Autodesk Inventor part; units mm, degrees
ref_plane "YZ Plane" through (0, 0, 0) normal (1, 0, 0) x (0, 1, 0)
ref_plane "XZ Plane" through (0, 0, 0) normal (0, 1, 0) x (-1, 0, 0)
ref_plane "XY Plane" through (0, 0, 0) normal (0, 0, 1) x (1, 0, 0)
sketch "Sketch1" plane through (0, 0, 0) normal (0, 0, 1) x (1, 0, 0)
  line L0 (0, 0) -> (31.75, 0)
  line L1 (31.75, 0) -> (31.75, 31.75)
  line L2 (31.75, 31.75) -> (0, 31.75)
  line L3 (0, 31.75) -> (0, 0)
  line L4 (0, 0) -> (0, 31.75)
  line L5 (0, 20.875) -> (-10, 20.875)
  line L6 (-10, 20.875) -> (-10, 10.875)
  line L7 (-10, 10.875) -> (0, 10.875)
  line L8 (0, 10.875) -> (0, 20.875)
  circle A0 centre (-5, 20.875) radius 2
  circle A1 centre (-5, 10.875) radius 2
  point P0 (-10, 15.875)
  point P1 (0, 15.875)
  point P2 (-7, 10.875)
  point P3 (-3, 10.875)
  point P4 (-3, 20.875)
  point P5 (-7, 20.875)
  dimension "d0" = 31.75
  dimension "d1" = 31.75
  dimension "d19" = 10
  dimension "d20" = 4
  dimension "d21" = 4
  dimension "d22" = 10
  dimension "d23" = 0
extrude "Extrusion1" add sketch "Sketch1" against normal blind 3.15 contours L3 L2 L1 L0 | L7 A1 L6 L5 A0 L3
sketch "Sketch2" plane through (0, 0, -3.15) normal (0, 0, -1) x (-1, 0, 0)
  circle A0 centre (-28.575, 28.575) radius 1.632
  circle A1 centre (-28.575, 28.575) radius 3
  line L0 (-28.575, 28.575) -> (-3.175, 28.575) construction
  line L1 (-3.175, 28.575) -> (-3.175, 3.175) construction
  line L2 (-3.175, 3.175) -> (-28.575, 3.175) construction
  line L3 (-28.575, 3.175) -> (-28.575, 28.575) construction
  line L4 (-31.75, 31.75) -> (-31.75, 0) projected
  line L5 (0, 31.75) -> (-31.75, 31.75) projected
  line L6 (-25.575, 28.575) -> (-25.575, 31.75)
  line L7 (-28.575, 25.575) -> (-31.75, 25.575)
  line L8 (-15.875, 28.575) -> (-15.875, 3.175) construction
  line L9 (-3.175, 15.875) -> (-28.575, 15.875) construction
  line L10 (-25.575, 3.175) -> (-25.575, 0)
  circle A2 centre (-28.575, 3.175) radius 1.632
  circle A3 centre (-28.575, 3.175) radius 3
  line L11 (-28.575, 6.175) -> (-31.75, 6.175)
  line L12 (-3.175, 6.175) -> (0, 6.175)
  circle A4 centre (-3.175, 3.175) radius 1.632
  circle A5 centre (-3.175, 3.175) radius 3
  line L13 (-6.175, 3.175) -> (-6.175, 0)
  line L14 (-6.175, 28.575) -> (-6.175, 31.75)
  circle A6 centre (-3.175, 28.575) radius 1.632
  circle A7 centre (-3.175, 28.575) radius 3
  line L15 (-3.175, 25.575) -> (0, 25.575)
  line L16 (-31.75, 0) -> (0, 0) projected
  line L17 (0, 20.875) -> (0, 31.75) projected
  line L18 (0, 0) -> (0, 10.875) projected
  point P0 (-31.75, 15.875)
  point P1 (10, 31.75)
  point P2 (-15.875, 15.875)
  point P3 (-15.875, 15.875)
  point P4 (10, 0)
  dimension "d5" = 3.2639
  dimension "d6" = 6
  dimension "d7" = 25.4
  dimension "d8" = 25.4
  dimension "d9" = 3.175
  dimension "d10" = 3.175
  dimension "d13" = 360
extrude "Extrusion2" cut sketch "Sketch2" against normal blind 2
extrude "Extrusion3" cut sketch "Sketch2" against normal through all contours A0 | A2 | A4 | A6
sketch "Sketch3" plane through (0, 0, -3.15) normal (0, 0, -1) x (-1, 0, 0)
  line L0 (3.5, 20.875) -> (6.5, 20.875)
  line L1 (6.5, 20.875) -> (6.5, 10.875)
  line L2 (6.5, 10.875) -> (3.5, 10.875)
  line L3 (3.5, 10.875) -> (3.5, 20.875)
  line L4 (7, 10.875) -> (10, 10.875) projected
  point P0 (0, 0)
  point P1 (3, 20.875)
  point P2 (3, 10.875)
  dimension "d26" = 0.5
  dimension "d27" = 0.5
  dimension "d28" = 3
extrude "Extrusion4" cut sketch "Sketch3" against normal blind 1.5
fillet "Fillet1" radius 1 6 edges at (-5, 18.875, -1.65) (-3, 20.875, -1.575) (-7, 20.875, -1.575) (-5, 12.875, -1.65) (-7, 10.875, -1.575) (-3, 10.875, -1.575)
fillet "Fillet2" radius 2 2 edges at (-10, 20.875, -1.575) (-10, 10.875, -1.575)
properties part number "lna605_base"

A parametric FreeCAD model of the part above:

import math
import FreeCAD as App
import Part
import Sketcher

V = App.Vector
Q = App.Units.Quantity


def edges_at(feature, points):
    """Names of the edges that pass closest to the given points."""
    edges = feature.Shape.Edges
    near = lambda p: min(range(len(edges)), key=lambda i: edges[i].distToShape(Part.Vertex(*p))[0])
    return sorted({f"Edge{near(p) + 1}" for p in points})


def add_polygon(sketch, points):
    """Adds a closed chain of lines whose ends are joined by coincident constraints."""
    first, n = sketch.GeometryCount, len(points)
    for a, b in zip(points, points[1:] + points[:1]):
        sketch.addGeometry(Part.LineSegment(App.Vector(*a, 0), App.Vector(*b, 0)), False)
    for i in range(n):
        sketch.addConstraint(Sketcher.Constraint("Coincident", first + i, 2, first + (i + 1) % n, 1))

doc = App.newDocument("Part")
body = doc.addObject("PartDesign::Body", "Body")

sketch1 = body.newObject("Sketcher::SketchObject", "Sketch")
sketch1.AttachmentSupport = (doc.getObject("XY_Plane"), [""])
sketch1.MapMode = "FlatFace"
sketch1.addGeometry([
    Part.LineSegment(V(0, 10.875, 0), V(0, 0, 0)),
    Part.LineSegment(V(0, 0, 0), V(31.75, 0, 0)),
    Part.LineSegment(V(31.75, 0, 0), V(31.75, 31.75, 0)),
    Part.LineSegment(V(31.75, 31.75, 0), V(0, 31.75, 0)),
    Part.LineSegment(V(0, 31.75, 0), V(0, 20.875, 0)),
    Part.LineSegment(V(0, 20.875, 0), V(-3, 20.875, 0)),
    Part.ArcOfCircle(Part.Circle(V(-5, 20.875, 0), V(0, 0, 1), 2), math.radians(180), math.radians(360)),
    Part.LineSegment(V(-7, 20.875, 0), V(-10, 20.875, 0)),
    Part.LineSegment(V(-10, 20.875, 0), V(-10, 10.875, 0)),
    Part.LineSegment(V(-10, 10.875, 0), V(-7, 10.875, 0)),
    Part.ArcOfCircle(Part.Circle(V(-5, 10.875, 0), V(0, 0, 1), 2), math.radians(0), math.radians(180)),
    Part.LineSegment(V(-3, 10.875, 0), V(0, 10.875, 0)),
], False)
sketch1.addConstraint([
    Sketcher.Constraint("Coincident", 0, 2, 1, 1),
    Sketcher.Constraint("Coincident", 1, 2, 2, 1),
    Sketcher.Constraint("Coincident", 2, 2, 3, 1),
    Sketcher.Constraint("Coincident", 3, 2, 4, 1),
    Sketcher.Constraint("Coincident", 4, 2, 5, 1),
    Sketcher.Constraint("Coincident", 5, 2, 6, 2),
    Sketcher.Constraint("Coincident", 6, 1, 7, 1),
    Sketcher.Constraint("Coincident", 7, 2, 8, 1),
    Sketcher.Constraint("Coincident", 8, 2, 9, 1),
    Sketcher.Constraint("Coincident", 9, 2, 10, 2),
    Sketcher.Constraint("Coincident", 10, 1, 11, 1),
    Sketcher.Constraint("Coincident", 11, 2, 0, 1),
    Sketcher.Constraint("Vertical", 0),
    Sketcher.Constraint("Horizontal", 1),
    Sketcher.Constraint("Vertical", 2),
    Sketcher.Constraint("Horizontal", 3),
    Sketcher.Constraint("Vertical", 4),
    Sketcher.Constraint("Horizontal", 5),
    Sketcher.Constraint("Horizontal", 7),
    Sketcher.Constraint("Vertical", 8),
    Sketcher.Constraint("Horizontal", 9),
    Sketcher.Constraint("Horizontal", 11),
    Sketcher.Constraint("Coincident", 0, 2, -1, 1),
    Sketcher.Constraint("Equal", 6, 10),
    Sketcher.Constraint("PointOnObject", 3, 2, -2),
    Sketcher.Constraint("Horizontal", 6, 3, 4, 2),
    Sketcher.Constraint("Horizontal", 5, 2, 6, 1),
    Sketcher.Constraint("Horizontal", 10, 3, 8, 2),
    Sketcher.Constraint("Horizontal", 9, 2, 10, 1),
    Sketcher.Constraint("Vertical", 6, 3, 10, 3),
    Sketcher.Constraint("Equal", 5, 7),
    Sketcher.Constraint("Equal", 3, 2),
    Sketcher.Constraint("Equal", 0, 4),
    Sketcher.Constraint("Radius", 6, Q("2 mm")),
    Sketcher.Constraint("DistanceY", 8, 2, 8, 1, Q("10 mm")),
    Sketcher.Constraint("DistanceX", 7, 2, -1, 1, Q("10 mm")),
    Sketcher.Constraint("DistanceX", 1, 1, 1, 2, Q("31.75 mm")),
])
pad1 = body.newObject("PartDesign::Pad", "Pad")
pad1.Profile = sketch1
pad1.Length = 3.15
pad1.Reversed = True

sketch2 = body.newObject("Sketcher::SketchObject", "Sketch001")
sketch2.AttachmentSupport = (doc.getObject("XY_Plane"), [""])
sketch2.MapMode = "FlatFace"
sketch2.AttachmentOffset = App.Placement(V(0, 0, -3.15), App.Rotation())
sketch2.addGeometry([
    Part.ArcOfCircle(Part.Circle(V(28.575, 28.575, 0), V(0, 0, 1), 3), math.radians(180), math.radians(270)),
    Part.LineSegment(V(25.575, 28.575, 0), V(25.575, 31.75, 0)),
    Part.LineSegment(V(25.575, 31.75, 0), V(31.75, 31.75, 0)),
    Part.LineSegment(V(31.75, 31.75, 0), V(31.75, 25.575, 0)),
    Part.LineSegment(V(31.75, 25.575, 0), V(28.575, 25.575, 0)),
    Part.Circle(V(28.575, 28.575, 0), V(0, 0, 1), 1.632),
    Part.LineSegment(V(6.175, 3.175, 0), V(6.175, 0, 0)),
    Part.LineSegment(V(6.175, 0, 0), V(0, 0, 0)),
    Part.LineSegment(V(0, 0, 0), V(0, 6.175, 0)),
    Part.LineSegment(V(0, 6.175, 0), V(3.175, 6.175, 0)),
    Part.ArcOfCircle(Part.Circle(V(3.175, 3.175, 0), V(0, 0, 1), 3), math.radians(0), math.radians(90)),
    Part.Circle(V(3.175, 3.175, 0), V(0, 0, 1), 1.632),
    Part.LineSegment(V(28.575, 6.175, 0), V(31.75, 6.175, 0)),
    Part.LineSegment(V(31.75, 6.175, 0), V(31.75, 0, 0)),
    Part.LineSegment(V(31.75, 0, 0), V(25.575, 0, 0)),
    Part.LineSegment(V(25.575, 0, 0), V(25.575, 3.175, 0)),
    Part.ArcOfCircle(Part.Circle(V(28.575, 3.175, 0), V(0, 0, 1), 3), math.radians(90), math.radians(180)),
    Part.Circle(V(28.575, 3.175, 0), V(0, 0, 1), 1.632),
    Part.LineSegment(V(0, 31.75, 0), V(6.175, 31.75, 0)),
    Part.LineSegment(V(6.175, 31.75, 0), V(6.175, 28.575, 0)),
    Part.ArcOfCircle(Part.Circle(V(3.175, 28.575, 0), V(0, 0, 1), 3), math.radians(-90), math.radians(0)),
    Part.LineSegment(V(3.175, 25.575, 0), V(0, 25.575, 0)),
    Part.LineSegment(V(0, 25.575, 0), V(0, 31.75, 0)),
    Part.Circle(V(3.175, 28.575, 0), V(0, 0, 1), 1.632),
], False)
sketch2.addConstraint([
    Sketcher.Constraint("Tangent", 0, 1, 1, 1),
    Sketcher.Constraint("Coincident", 1, 2, 2, 1),
    Sketcher.Constraint("Coincident", 2, 2, 3, 1),
    Sketcher.Constraint("Coincident", 3, 2, 4, 1),
    Sketcher.Constraint("Tangent", 4, 2, 0, 2),
    Sketcher.Constraint("Coincident", 6, 2, 7, 1),
    Sketcher.Constraint("Coincident", 7, 2, 8, 1),
    Sketcher.Constraint("Coincident", 8, 2, 9, 1),
    Sketcher.Constraint("Tangent", 9, 2, 10, 2),
    Sketcher.Constraint("Tangent", 10, 1, 6, 1),
    Sketcher.Constraint("Coincident", 12, 2, 13, 1),
    Sketcher.Constraint("Coincident", 13, 2, 14, 1),
    Sketcher.Constraint("Coincident", 14, 2, 15, 1),
    Sketcher.Constraint("Tangent", 15, 2, 16, 2),
    Sketcher.Constraint("Tangent", 16, 1, 12, 1),
    Sketcher.Constraint("Coincident", 18, 2, 19, 1),
    Sketcher.Constraint("Tangent", 19, 2, 20, 2),
    Sketcher.Constraint("Tangent", 20, 1, 21, 1),
    Sketcher.Constraint("Coincident", 21, 2, 22, 1),
    Sketcher.Constraint("Coincident", 22, 2, 18, 1),
    Sketcher.Constraint("Vertical", 1),
    Sketcher.Constraint("Horizontal", 2),
    Sketcher.Constraint("Vertical", 3),
    Sketcher.Constraint("Horizontal", 4),
    Sketcher.Constraint("Vertical", 6),
    Sketcher.Constraint("Horizontal", 7),
    Sketcher.Constraint("Vertical", 8),
    Sketcher.Constraint("Horizontal", 9),
    Sketcher.Constraint("Horizontal", 12),
    Sketcher.Constraint("Vertical", 13),
    Sketcher.Constraint("Horizontal", 14),
    Sketcher.Constraint("Vertical", 15),
    Sketcher.Constraint("Horizontal", 18),
    Sketcher.Constraint("Vertical", 19),
    Sketcher.Constraint("Horizontal", 21),
    Sketcher.Constraint("Vertical", 22),
    Sketcher.Constraint("Coincident", 7, 2, -1, 1),
    Sketcher.Constraint("Coincident", 5, 3, 0, 3),
    Sketcher.Constraint("Coincident", 11, 3, 10, 3),
    Sketcher.Constraint("Coincident", 17, 3, 16, 3),
    Sketcher.Constraint("Coincident", 23, 3, 20, 3),
    Sketcher.Constraint("Equal", 0, 10),
    Sketcher.Constraint("Equal", 5, 11),
    Sketcher.Constraint("Equal", 10, 16),
    Sketcher.Constraint("Equal", 11, 17),
    Sketcher.Constraint("Equal", 16, 20),
    Sketcher.Constraint("Equal", 17, 23),
    Sketcher.Constraint("PointOnObject", 13, 2, -1),
    Sketcher.Constraint("PointOnObject", 21, 2, -2),
    Sketcher.Constraint("Horizontal", 11, 3, 16, 3),
    Sketcher.Constraint("Horizontal", 5, 3, 20, 3),
    Sketcher.Constraint("Horizontal", 2, 2, 18, 2),
    Sketcher.Constraint("Vertical", 5, 3, 16, 3),
    Sketcher.Constraint("Vertical", 11, 3, 20, 3),
    Sketcher.Constraint("Vertical", 3, 2, 12, 2),
    Sketcher.Constraint("Equal", 2, 7),
    Sketcher.Constraint("Equal", 21, 1),
    Sketcher.Constraint("Equal", 1, 6),
    Sketcher.Constraint("Radius", 0, Q("3 mm")),
    Sketcher.Constraint("Diameter", 5, Q("3.264 mm")),
    Sketcher.Constraint("DistanceX", 10, 3, 0, 3, Q("25.4 mm")),
    Sketcher.Constraint("DistanceY", 10, 3, 0, 3, Q("25.4 mm")),
    Sketcher.Constraint("DistanceX", 4, 2, 4, 1, Q("3.175 mm")),
])
pocket1 = body.newObject("PartDesign::Pocket", "Pocket")
pocket1.Profile = sketch2
pocket1.Length = 2
pocket1.Reversed = True

sketch3 = body.newObject("Sketcher::SketchObject", "Sketch002")
sketch3.AttachmentSupport = (doc.getObject("XY_Plane"), [""])
sketch3.MapMode = "FlatFace"
sketch3.AttachmentOffset = App.Placement(V(0, 0, -3.15), App.Rotation())
sketch3.addGeometry([
    Part.Circle(V(28.575, 28.575, 0), V(0, 0, 1), 1.632),
    Part.Circle(V(28.575, 3.175, 0), V(0, 0, 1), 1.632),
    Part.Circle(V(3.175, 3.175, 0), V(0, 0, 1), 1.632),
    Part.Circle(V(3.175, 28.575, 0), V(0, 0, 1), 1.632),
], False)
sketch3.addConstraint([
    Sketcher.Constraint("Equal", 0, 1),
    Sketcher.Constraint("Equal", 1, 2),
    Sketcher.Constraint("Equal", 2, 3),
    Sketcher.Constraint("Horizontal", 1, 3, 2, 3),
    Sketcher.Constraint("Horizontal", 0, 3, 3, 3),
    Sketcher.Constraint("Vertical", 0, 3, 1, 3),
    Sketcher.Constraint("Vertical", 2, 3, 3, 3),
    Sketcher.Constraint("Diameter", 0, Q("3.264 mm")),
    Sketcher.Constraint("DistanceY", 1, 3, 0, 3, Q("25.4 mm")),
    Sketcher.Constraint("DistanceX", 2, 3, 1, 3, Q("25.4 mm")),
    Sketcher.Constraint("DistanceY", -1, 1, 1, 3, Q("3.175 mm")),
    Sketcher.Constraint("DistanceX", -1, 1, 2, 3, Q("3.175 mm")),
])
pocket2 = body.newObject("PartDesign::Pocket", "Pocket001")
pocket2.Profile = sketch3
pocket2.Type = "ThroughAll"
pocket2.Reversed = True

sketch4 = body.newObject("Sketcher::SketchObject", "Sketch003")
sketch4.AttachmentSupport = (doc.getObject("XY_Plane"), [""])
sketch4.MapMode = "FlatFace"
sketch4.AttachmentOffset = App.Placement(V(0, 0, -3.15), App.Rotation())
add_polygon(sketch4, [(-6.5, 20.875), (-3.5, 20.875), (-3.5, 10.875), (-6.5, 10.875)])
sketch4.addConstraint([
    Sketcher.Constraint("Horizontal", 0),
    Sketcher.Constraint("Vertical", 1),
    Sketcher.Constraint("Horizontal", 2),
    Sketcher.Constraint("Vertical", 3),
    Sketcher.Constraint("DistanceX", 0, 1, 0, 2, Q("3 mm")),
    Sketcher.Constraint("DistanceY", 1, 2, 1, 1, Q("10 mm")),
    Sketcher.Constraint("DistanceX", 0, 2, -1, 1, Q("3.5 mm")),
    Sketcher.Constraint("DistanceY", -1, 1, 0, 2, Q("20.875 mm")),
])
pocket3 = body.newObject("PartDesign::Pocket", "Pocket002")
pocket3.Profile = sketch4
pocket3.Length = 1.5
pocket3.Reversed = True
doc.recompute()

fillet = body.newObject("PartDesign::Fillet", "Fillet")
fillet.Base = (pocket3, edges_at(pocket3, [
    (-5, 18.875, -1.65),
    (-3, 20.875, -1.575),
    (-7, 20.875, -1.575),
    (-5, 12.875, -1.65),
    (-7, 10.875, -1.575),
    (-3, 10.875, -1.575),
]))
fillet.Radius = 1
doc.recompute()

fillet2 = body.newObject("PartDesign::Fillet", "Fillet001")
fillet2.Base = (fillet, edges_at(fillet, [(-10, 20.875, -1.575), (-10, 10.875, -1.575)]))
fillet2.Radius = 2

doc.recompute()
